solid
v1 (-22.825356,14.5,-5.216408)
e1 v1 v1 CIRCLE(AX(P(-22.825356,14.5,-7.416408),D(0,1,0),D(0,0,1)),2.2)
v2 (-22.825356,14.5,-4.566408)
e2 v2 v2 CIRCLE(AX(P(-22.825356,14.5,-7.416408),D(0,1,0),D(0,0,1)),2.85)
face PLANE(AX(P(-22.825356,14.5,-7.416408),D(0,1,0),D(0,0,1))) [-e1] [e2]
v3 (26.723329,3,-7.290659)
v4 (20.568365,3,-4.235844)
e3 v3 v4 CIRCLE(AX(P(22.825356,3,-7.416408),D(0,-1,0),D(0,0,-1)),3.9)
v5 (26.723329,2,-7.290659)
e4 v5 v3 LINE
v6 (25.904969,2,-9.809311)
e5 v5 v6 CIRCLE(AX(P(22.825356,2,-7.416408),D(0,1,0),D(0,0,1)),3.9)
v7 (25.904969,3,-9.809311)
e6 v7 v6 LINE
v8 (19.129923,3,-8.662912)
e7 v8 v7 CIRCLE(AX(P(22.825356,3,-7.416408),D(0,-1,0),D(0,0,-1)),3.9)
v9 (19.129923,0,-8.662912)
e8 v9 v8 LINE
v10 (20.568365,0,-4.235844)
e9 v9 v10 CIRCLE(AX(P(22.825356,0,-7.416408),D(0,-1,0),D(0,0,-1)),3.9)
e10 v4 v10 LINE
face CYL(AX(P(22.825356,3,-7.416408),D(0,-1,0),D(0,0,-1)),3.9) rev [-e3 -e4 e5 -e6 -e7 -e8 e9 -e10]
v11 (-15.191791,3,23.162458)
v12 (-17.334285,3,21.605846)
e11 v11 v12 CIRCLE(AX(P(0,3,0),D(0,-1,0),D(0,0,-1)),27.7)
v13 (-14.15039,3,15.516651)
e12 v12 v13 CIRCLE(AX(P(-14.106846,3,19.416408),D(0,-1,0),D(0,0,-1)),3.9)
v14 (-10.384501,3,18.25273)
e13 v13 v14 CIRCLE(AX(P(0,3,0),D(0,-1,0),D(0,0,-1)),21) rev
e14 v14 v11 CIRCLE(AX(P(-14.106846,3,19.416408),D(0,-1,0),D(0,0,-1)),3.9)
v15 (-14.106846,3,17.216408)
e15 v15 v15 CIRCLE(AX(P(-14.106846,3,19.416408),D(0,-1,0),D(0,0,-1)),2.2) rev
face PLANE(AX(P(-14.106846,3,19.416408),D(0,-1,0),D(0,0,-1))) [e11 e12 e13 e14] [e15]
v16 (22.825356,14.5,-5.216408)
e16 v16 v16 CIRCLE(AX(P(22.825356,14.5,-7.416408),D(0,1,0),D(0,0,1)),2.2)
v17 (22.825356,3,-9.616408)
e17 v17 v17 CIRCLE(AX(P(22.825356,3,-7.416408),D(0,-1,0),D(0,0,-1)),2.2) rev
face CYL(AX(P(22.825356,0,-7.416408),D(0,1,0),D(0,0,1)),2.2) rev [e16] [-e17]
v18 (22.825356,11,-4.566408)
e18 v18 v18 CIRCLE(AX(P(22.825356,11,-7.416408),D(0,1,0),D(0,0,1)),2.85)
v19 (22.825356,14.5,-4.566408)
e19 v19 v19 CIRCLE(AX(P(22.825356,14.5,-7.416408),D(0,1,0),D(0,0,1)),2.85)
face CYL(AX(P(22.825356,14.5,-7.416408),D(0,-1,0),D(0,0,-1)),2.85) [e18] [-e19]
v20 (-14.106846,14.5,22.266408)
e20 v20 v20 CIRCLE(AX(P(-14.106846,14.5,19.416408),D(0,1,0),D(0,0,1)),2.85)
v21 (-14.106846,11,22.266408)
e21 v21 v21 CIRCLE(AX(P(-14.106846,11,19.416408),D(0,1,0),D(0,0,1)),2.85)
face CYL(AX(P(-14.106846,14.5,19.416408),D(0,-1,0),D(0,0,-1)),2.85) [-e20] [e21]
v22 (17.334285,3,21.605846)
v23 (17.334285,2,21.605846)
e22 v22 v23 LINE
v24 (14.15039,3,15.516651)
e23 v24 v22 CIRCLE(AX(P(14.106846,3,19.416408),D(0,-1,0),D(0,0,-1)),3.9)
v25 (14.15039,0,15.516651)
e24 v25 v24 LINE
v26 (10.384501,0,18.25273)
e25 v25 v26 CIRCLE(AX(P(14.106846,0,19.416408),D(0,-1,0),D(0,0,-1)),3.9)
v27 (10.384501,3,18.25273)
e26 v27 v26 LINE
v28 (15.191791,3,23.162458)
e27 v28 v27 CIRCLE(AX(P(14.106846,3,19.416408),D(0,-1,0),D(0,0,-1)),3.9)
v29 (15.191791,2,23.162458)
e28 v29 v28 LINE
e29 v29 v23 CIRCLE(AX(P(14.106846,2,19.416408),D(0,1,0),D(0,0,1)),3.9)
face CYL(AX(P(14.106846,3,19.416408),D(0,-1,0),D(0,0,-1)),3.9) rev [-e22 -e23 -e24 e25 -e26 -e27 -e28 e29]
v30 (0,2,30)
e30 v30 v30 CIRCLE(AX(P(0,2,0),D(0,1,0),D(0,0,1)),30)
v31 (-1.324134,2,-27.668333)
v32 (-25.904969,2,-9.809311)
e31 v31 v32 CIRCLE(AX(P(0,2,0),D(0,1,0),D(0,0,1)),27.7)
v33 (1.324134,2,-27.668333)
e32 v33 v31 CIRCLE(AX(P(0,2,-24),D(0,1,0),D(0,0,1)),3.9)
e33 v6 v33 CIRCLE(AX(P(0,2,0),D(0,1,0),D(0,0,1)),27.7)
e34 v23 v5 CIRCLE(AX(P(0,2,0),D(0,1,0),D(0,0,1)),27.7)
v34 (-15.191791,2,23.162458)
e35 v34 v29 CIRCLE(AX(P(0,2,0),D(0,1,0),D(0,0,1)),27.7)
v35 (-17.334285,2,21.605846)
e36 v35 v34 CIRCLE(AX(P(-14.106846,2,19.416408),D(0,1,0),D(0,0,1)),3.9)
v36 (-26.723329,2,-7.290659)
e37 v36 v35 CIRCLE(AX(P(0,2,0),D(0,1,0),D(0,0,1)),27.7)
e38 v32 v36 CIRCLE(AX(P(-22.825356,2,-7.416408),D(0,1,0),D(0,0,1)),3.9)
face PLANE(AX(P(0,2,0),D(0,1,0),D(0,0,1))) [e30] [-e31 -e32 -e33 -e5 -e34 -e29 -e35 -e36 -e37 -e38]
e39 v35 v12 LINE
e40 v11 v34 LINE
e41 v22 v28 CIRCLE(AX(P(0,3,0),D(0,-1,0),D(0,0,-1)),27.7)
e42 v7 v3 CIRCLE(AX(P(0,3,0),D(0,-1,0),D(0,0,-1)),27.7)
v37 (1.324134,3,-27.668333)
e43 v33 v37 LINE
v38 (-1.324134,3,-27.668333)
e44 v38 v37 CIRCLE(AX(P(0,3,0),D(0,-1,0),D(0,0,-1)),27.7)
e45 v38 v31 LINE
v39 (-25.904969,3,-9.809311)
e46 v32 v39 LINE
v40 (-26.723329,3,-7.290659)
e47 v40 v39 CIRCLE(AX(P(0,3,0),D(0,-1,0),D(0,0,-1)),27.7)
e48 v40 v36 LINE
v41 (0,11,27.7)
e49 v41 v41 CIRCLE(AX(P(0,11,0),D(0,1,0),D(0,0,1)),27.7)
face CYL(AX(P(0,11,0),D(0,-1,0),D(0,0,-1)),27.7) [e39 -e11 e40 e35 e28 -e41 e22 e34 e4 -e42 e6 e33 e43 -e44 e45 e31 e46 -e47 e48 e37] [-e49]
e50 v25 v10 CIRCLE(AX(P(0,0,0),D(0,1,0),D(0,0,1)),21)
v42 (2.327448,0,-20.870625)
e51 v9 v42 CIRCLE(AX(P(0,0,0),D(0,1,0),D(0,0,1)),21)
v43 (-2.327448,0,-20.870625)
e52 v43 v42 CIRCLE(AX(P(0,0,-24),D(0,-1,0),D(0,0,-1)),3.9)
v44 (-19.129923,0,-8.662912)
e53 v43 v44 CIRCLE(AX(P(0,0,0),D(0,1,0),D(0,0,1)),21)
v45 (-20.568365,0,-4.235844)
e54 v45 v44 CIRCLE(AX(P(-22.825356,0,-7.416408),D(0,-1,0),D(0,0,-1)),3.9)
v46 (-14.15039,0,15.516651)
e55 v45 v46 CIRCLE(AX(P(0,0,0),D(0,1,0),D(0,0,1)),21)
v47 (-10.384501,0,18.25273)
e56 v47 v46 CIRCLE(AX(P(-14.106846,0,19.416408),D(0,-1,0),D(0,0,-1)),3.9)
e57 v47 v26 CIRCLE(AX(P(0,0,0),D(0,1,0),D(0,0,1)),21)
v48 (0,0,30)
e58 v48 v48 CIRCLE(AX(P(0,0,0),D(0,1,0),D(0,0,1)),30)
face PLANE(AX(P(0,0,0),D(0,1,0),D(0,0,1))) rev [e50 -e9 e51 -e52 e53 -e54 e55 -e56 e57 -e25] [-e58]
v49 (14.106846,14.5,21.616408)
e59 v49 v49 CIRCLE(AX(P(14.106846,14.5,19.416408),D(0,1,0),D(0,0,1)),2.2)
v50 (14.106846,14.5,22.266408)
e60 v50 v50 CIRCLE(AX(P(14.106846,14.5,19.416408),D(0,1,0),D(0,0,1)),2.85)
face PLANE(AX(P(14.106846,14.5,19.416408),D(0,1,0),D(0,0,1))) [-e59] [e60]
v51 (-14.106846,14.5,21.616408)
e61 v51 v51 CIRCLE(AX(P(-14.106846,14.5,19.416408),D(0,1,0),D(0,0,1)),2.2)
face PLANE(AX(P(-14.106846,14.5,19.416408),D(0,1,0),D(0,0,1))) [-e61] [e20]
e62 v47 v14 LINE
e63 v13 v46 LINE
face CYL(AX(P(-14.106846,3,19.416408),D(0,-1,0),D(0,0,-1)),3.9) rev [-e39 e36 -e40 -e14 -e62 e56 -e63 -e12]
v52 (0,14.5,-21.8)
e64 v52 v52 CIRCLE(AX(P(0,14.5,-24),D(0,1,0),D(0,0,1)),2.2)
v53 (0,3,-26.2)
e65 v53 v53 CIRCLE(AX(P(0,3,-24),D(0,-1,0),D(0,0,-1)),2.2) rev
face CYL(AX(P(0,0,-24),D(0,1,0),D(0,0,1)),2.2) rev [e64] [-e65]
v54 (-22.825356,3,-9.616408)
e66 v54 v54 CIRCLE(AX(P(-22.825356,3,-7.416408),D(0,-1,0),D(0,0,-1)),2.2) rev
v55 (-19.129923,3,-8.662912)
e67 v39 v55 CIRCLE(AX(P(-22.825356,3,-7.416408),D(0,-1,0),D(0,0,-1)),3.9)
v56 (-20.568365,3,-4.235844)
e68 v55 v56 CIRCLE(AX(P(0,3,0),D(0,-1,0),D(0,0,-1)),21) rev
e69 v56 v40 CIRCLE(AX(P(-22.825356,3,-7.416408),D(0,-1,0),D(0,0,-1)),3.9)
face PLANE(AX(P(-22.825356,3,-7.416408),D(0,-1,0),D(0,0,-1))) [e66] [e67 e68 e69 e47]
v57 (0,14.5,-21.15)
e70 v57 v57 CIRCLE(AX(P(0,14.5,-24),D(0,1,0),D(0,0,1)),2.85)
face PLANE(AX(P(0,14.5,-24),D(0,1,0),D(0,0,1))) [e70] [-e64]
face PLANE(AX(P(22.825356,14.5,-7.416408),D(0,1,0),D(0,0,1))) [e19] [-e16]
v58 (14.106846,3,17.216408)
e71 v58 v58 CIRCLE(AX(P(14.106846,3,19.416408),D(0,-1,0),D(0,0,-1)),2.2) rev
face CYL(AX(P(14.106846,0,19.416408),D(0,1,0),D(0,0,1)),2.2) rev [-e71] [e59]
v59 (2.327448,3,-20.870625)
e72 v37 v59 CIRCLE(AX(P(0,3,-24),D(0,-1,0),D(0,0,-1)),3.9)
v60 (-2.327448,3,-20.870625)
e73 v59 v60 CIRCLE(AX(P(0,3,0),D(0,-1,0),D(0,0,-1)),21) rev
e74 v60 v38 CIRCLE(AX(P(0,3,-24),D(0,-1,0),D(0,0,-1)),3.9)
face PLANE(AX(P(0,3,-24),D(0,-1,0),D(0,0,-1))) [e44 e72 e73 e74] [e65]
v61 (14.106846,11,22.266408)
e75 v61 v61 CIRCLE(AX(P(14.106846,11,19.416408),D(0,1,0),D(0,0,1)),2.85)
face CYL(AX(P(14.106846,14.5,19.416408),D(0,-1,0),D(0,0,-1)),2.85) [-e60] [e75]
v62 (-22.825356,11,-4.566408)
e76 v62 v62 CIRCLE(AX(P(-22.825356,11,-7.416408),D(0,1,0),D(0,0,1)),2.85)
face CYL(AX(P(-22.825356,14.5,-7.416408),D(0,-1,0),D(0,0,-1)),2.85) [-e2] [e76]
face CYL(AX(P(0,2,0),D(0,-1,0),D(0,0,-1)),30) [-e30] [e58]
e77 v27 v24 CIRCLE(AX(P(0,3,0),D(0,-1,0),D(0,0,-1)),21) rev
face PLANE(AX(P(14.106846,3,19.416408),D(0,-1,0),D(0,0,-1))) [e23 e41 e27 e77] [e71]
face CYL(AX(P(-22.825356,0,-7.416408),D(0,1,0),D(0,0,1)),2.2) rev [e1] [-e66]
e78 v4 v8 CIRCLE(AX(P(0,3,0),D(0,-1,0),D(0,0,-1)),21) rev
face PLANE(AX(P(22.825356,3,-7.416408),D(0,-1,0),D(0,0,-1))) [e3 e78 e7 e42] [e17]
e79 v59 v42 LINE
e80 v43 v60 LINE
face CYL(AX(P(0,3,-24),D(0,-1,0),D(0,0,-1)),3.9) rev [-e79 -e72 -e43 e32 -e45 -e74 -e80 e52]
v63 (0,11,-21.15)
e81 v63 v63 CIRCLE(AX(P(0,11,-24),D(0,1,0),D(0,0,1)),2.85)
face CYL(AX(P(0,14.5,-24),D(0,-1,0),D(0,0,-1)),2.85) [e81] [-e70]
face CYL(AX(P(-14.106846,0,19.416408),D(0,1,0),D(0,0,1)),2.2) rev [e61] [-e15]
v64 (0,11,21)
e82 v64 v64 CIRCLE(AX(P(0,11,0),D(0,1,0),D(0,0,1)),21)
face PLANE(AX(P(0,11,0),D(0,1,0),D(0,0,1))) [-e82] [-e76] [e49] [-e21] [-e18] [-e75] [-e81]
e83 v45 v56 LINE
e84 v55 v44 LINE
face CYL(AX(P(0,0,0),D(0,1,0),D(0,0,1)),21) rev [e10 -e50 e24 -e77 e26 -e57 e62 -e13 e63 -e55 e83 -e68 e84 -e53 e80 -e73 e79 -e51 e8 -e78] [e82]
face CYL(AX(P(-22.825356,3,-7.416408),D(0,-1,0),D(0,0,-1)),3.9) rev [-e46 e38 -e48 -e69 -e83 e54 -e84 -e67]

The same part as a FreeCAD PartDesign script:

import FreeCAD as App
import Part
import Sketcher
Q = App.Units.Quantity

doc = App.newDocument("Part")
body = doc.addObject("PartDesign::Body", "Body")

# Sketch on XZ plane
sketch1 = body.newObject("Sketcher::SketchObject", "Sketch")
sketch1.AttachmentSupport = (doc.getObject("XZ_Plane"), [""])
sketch1.MapMode = "FlatFace"
sketch1.addGeometry(Part.Circle(App.Vector(0, 0, 0), App.Vector(0, 0, 1), 27.7), False)
sketch1.addConstraint([
    Sketcher.Constraint("Coincident", 0, 3, -1, 1),
    Sketcher.Constraint("Diameter", 0, Q("55.4 mm")),
])
pad1 = body.newObject("PartDesign::Pad", "Pad")
pad1.Profile = sketch1
pad1.Length = 11
pad1.Reversed = True

# Sketch on XZ plane
sketch2 = body.newObject("Sketcher::SketchObject", "Sketch001")
sketch2.AttachmentSupport = (doc.getObject("XZ_Plane"), [""])
sketch2.MapMode = "FlatFace"
sketch2.addGeometry(Part.Circle(App.Vector(0, 0, 0), App.Vector(0, 0, 1), 30), False)
sketch2.addConstraint([
    Sketcher.Constraint("Coincident", 0, 3, -1, 1),
    Sketcher.Constraint("Diameter", 0, Q("60 mm")),
])
pad2 = body.newObject("PartDesign::Pad", "Pad001")
pad2.Profile = sketch2
pad2.Length = 2
pad2.Reversed = True

# Sketch on XZ plane
sketch3 = body.newObject("Sketcher::SketchObject", "Sketch002")
sketch3.AttachmentSupport = (doc.getObject("XZ_Plane"), [""])
sketch3.MapMode = "FlatFace"
sketch3.AttachmentOffset = App.Placement(App.Vector(0, 0, -11), App.Rotation())
sketch3.addGeometry([
    Part.Circle(App.Vector(0, -24, 0), App.Vector(0, 0, 1), 2.2),  # 0
    Part.Circle(App.Vector(22.825356, -7.416408, 0), App.Vector(0, 0, 1), 2.2),  # 1
    Part.Circle(App.Vector(14.106846, 19.416408, 0), App.Vector(0, 0, 1), 2.2),  # 2
    Part.Circle(App.Vector(-14.106846, 19.416408, 0), App.Vector(0, 0, 1), 2.2),  # 3
    Part.Circle(App.Vector(-22.825356, -7.416408, 0), App.Vector(0, 0, 1), 2.2),  # 4
], False)
sketch3.addConstraint([
    Sketcher.Constraint("Equal", 0, 1),
    Sketcher.Constraint("Equal", 1, 2),
    Sketcher.Constraint("Equal", 2, 3),
    Sketcher.Constraint("Equal", 3, 4),
    Sketcher.Constraint("Symmetric", 2, 3, 3, 3, -2),
    Sketcher.Constraint("Symmetric", 1, 3, 4, 3, -2),
    Sketcher.Constraint("PointOnObject", 0, 3, -2),
    Sketcher.Constraint("Diameter", 0, Q("4.4 mm")),
    Sketcher.Constraint("DistanceY", 0, 3, -1, 1, Q("24 mm")),
    Sketcher.Constraint("DistanceX", 2, 3, 1, 3, Q("8.71851 mm")),
    Sketcher.Constraint("DistanceX", -1, 1, 1, 3, Q("22.825356 mm")),
    Sketcher.Constraint("DistanceY", 1, 3, -1, 1, Q("7.416408 mm")),
    Sketcher.Constraint("DistanceY", -1, 1, 2, 3, Q("19.416408 mm")),
])
pocket1 = body.newObject("PartDesign::Pocket", "Pocket")
pocket1.Profile = sketch3
pocket1.Type = "ThroughAll"
pocket1.Reversed = True

# Sketch on XZ plane
sketch4 = body.newObject("Sketcher::SketchObject", "Sketch003")
sketch4.AttachmentSupport = (doc.getObject("XZ_Plane"), [""])
sketch4.MapMode = "FlatFace"
sketch4.AttachmentOffset = App.Placement(App.Vector(0, 0, -11), App.Rotation())
sketch4.addGeometry(Part.Circle(App.Vector(0, 0, 0), App.Vector(0, 0, 1), 21), False)
sketch4.addConstraint([
    Sketcher.Constraint("Coincident", 0, 3, -1, 1),
    Sketcher.Constraint("Diameter", 0, Q("42 mm")),
])
pocket2 = body.newObject("PartDesign::Pocket", "Pocket001")
pocket2.Profile = sketch4
pocket2.Type = "ThroughAll"
pocket2.Reversed = True

# Sketch on XZ plane
sketch5 = body.newObject("Sketcher::SketchObject", "Sketch004")
sketch5.AttachmentSupport = (doc.getObject("XZ_Plane"), [""])
sketch5.MapMode = "FlatFace"
sketch5.AttachmentOffset = App.Placement(App.Vector(0, 0, -14.5), App.Rotation())
sketch5.addGeometry([
    Part.Circle(App.Vector(-22.825356, -7.416408, 0), App.Vector(0, 0, 1), 2.85),  # 0
    Part.Circle(App.Vector(-22.825356, -7.416408, 0), App.Vector(0, 0, 1), 2.2),  # 1
    Part.Circle(App.Vector(0, -24, 0), App.Vector(0, 0, 1), 2.85),  # 2
    Part.Circle(App.Vector(0, -24, 0), App.Vector(0, 0, 1), 2.2),  # 3
    Part.Circle(App.Vector(22.825356, -7.416408, 0), App.Vector(0, 0, 1), 2.85),  # 4
    Part.Circle(App.Vector(22.825356, -7.416408, 0), App.Vector(0, 0, 1), 2.2),  # 5
    Part.Circle(App.Vector(14.106846, 19.416408, 0), App.Vector(0, 0, 1), 2.85),  # 6
    Part.Circle(App.Vector(14.106846, 19.416408, 0), App.Vector(0, 0, 1), 2.2),  # 7
    Part.Circle(App.Vector(-14.106846, 19.416408, 0), App.Vector(0, 0, 1), 2.85),  # 8
    Part.Circle(App.Vector(-14.106846, 19.416408, 0), App.Vector(0, 0, 1), 2.2),  # 9
], False)
sketch5.addConstraint([
    Sketcher.Constraint("Coincident", 1, 3, 0, 3),
    Sketcher.Constraint("Coincident", 3, 3, 2, 3),
    Sketcher.Constraint("Coincident", 5, 3, 4, 3),
    Sketcher.Constraint("Coincident", 7, 3, 6, 3),
    Sketcher.Constraint("Coincident", 9, 3, 8, 3),
    Sketcher.Constraint("Equal", 0, 2),
    Sketcher.Constraint("Equal", 1, 3),
    Sketcher.Constraint("Equal", 2, 4),
    Sketcher.Constraint("Equal", 3, 5),
    Sketcher.Constraint("Equal", 4, 6),
    Sketcher.Constraint("Equal", 5, 7),
    Sketcher.Constraint("Equal", 6, 8),
    Sketcher.Constraint("Equal", 7, 9),
    Sketcher.Constraint("Symmetric", 0, 3, 4, 3, -2),
    Sketcher.Constraint("Symmetric", 6, 3, 8, 3, -2),
    Sketcher.Constraint("PointOnObject", 2, 3, -2),
    Sketcher.Constraint("Diameter", 0, Q("5.7 mm")),
    Sketcher.Constraint("Diameter", 1, Q("4.4 mm")),
    Sketcher.Constraint("DistanceY", 2, 3, -1, 1, Q("24 mm")),
    Sketcher.Constraint("DistanceX", 6, 3, 4, 3, Q("8.71851 mm")),
    Sketcher.Constraint("DistanceX", 0, 3, -1, 1, Q("22.825356 mm")),
    Sketcher.Constraint("DistanceY", 0, 3, -1, 1, Q("7.416408 mm")),
    Sketcher.Constraint("DistanceY", -1, 1, 6, 3, Q("19.416408 mm")),
])
pad3 = body.newObject("PartDesign::Pad", "Pad002")
pad3.Profile = sketch5
pad3.Length = 3.5

# Sketch on XZ plane
sketch6 = body.newObject("Sketcher::SketchObject", "Sketch005")
sketch6.AttachmentSupport = (doc.getObject("XZ_Plane"), [""])
sketch6.MapMode = "FlatFace"
sketch6.addGeometry([
    Part.Circle(App.Vector(-14.106846, 19.416408, 0), App.Vector(0, 0, 1), 3.9),  # 0
    Part.Circle(App.Vector(14.106846, 19.416408, 0), App.Vector(0, 0, 1), 3.9),  # 1
    Part.Circle(App.Vector(22.825356, -7.416408, 0), App.Vector(0, 0, 1), 3.9),  # 2
    Part.Circle(App.Vector(0, -24, 0), App.Vector(0, 0, 1), 3.9),  # 3
    Part.Circle(App.Vector(-22.825356, -7.416408, 0), App.Vector(0, 0, 1), 3.9),  # 4
], False)
sketch6.addConstraint([
    Sketcher.Constraint("Equal", 0, 1),
    Sketcher.Constraint("Equal", 1, 2),
    Sketcher.Constraint("Equal", 2, 3),
    Sketcher.Constraint("Equal", 3, 4),
    Sketcher.Constraint("Symmetric", 0, 3, 1, 3, -2),
    Sketcher.Constraint("Symmetric", 2, 3, 4, 3, -2),
    Sketcher.Constraint("PointOnObject", 3, 3, -2),
    Sketcher.Constraint("Diameter", 0, Q("7.8 mm")),
    Sketcher.Constraint("DistanceY", 3, 3, -1, 1, Q("24 mm")),
    Sketcher.Constraint("DistanceX", 1, 3, 2, 3, Q("8.71851 mm")),
    Sketcher.Constraint("DistanceX", 0, 3, -1, 1, Q("14.106846 mm")),
    Sketcher.Constraint("DistanceY", -1, 1, 0, 3, Q("19.416408 mm")),
    Sketcher.Constraint("DistanceY", 2, 3, -1, 1, Q("7.416408 mm")),
])
pocket3 = body.newObject("PartDesign::Pocket", "Pocket002")
pocket3.Profile = sketch6
pocket3.Length = 3

doc.recompute()
